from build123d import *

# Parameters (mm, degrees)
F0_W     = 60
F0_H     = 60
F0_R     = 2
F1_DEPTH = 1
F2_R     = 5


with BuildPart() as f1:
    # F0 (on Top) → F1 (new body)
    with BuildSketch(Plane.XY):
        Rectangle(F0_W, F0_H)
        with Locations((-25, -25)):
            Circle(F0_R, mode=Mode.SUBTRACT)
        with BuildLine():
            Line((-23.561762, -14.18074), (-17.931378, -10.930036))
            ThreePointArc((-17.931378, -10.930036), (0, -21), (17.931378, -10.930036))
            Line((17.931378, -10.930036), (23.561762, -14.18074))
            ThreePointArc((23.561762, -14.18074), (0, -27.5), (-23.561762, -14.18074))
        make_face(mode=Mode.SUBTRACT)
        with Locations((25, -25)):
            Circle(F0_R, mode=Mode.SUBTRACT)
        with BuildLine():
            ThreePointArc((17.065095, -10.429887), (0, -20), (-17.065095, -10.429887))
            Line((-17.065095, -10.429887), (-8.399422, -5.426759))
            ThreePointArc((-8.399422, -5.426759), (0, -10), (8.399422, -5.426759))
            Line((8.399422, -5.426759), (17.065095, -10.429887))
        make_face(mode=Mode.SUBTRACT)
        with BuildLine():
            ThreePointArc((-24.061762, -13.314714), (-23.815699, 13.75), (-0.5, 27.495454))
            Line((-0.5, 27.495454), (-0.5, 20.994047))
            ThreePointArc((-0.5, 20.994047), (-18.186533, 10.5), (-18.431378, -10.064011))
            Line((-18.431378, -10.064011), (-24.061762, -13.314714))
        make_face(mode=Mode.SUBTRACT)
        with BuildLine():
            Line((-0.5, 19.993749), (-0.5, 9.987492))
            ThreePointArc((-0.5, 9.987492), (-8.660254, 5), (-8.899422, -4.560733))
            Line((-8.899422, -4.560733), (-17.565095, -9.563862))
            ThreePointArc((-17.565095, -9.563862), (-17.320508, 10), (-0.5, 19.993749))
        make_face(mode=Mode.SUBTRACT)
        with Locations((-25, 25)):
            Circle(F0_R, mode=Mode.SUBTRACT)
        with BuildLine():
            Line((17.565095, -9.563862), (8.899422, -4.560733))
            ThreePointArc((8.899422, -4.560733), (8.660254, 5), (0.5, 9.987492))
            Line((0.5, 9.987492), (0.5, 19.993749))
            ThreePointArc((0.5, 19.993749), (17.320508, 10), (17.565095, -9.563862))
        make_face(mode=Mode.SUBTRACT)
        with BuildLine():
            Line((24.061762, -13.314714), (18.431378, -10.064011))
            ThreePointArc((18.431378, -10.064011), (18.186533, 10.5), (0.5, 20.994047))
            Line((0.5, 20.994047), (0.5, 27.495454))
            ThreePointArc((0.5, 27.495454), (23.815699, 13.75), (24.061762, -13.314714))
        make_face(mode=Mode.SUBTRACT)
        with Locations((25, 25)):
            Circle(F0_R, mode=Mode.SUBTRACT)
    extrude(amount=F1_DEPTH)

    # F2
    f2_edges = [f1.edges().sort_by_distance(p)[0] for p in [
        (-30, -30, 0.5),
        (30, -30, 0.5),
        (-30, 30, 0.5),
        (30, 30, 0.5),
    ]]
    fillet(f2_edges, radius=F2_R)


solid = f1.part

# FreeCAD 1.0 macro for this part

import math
import FreeCAD as App
import Part
import Sketcher
Q = App.Units.Quantity


def edges_at(feature, points):
    """Names of the edges that pass closest to the given points."""
    edges = feature.Shape.Edges
    near = lambda p: min(range(len(edges)), key=lambda i: edges[i].distToShape(Part.Vertex(*p))[0])
    return sorted({f"Edge{near(p) + 1}" for p in points})


def add_polygon(sketch, points):
    """Adds a closed chain of lines whose ends are joined by coincident constraints."""
    first, n = sketch.GeometryCount, len(points)
    for a, b in zip(points, points[1:] + points[:1]):
        sketch.addGeometry(Part.LineSegment(App.Vector(*a, 0), App.Vector(*b, 0)), False)
    for i in range(n):
        sketch.addConstraint(Sketcher.Constraint("Coincident", first + i, 2, first + (i + 1) % n, 1))

doc = App.newDocument("Part")
body = doc.addObject("PartDesign::Body", "Body")

# Sketch on XY plane
sketch1 = body.newObject("Sketcher::SketchObject", "Sketch")
sketch1.AttachmentSupport = (doc.getObject("XY_Plane"), [""])
sketch1.MapMode = "FlatFace"
add_polygon(sketch1, [(-30, 30), (-30, -30), (30, -30), (30, 30)])  # lines 0-3
sketch1.addGeometry(Part.Circle(App.Vector(-25, -25, 0), App.Vector(0, 0, 1), 2), False)  # 4
sketch1.addGeometry(Part.ArcOfCircle(Part.Circle(App.Vector(0, 0.000001, 0), App.Vector(0, 0, 1), 27.500001), math.radians(-148.9582), math.radians(-31.0418)), False)  # 5
sketch1.addGeometry(Part.LineSegment(App.Vector(-23.561762, -14.18074, 0), App.Vector(-17.931378, -10.930036, 0)), False)  # 6
sketch1.addGeometry(Part.ArcOfCircle(Part.Circle(App.Vector(0, 0, 0), App.Vector(0, 0, 1), 21), math.radians(-148.635686), math.radians(-31.364314)), False)  # 7
sketch1.addGeometry(Part.LineSegment(App.Vector(17.931378, -10.930036, 0), App.Vector(23.561762, -14.18074, 0)), False)  # 8
sketch1.addGeometry(Part.LineSegment(App.Vector(8.399422, -5.426759, 0), App.Vector(17.065095, -10.429887, 0)), False)  # 9
sketch1.addGeometry(Part.ArcOfCircle(Part.Circle(App.Vector(0, 0.000001, 0), App.Vector(0, 0, 1), 20.000001), math.radians(-148.567456), math.radians(-31.432544)), False)  # 10
sketch1.addGeometry(Part.LineSegment(App.Vector(-17.065095, -10.429887, 0), App.Vector(-8.399422, -5.426759, 0)), False)  # 11
sketch1.addGeometry(Part.ArcOfCircle(Part.Circle(App.Vector(0, 0, 0), App.Vector(0, 0, 1), 10), math.radians(-147.134014), math.radians(-32.865986)), False)  # 12
sketch1.addGeometry(Part.Circle(App.Vector(25, -25, 0), App.Vector(0, 0, 1), 2), False)  # 13
sketch1.addGeometry(Part.LineSegment(App.Vector(-18.431378, -10.064011, 0), App.Vector(-24.061762, -13.314714, 0)), False)  # 14
sketch1.addGeometry(Part.ArcOfCircle(Part.Circle(App.Vector(-0.000001, 0, 0), App.Vector(0, 0, 1), 27.499999), math.radians(91.041797), math.radians(208.958202)), False)  # 15
sketch1.addGeometry(Part.LineSegment(App.Vector(-0.5, 27.495454, 0), App.Vector(-0.5, 20.994047, 0)), False)  # 16
sketch1.addGeometry(Part.ArcOfCircle(Part.Circle(App.Vector(0.000001, -0.000001, 0), App.Vector(0, 0, 1), 21.000001), math.radians(91.364317), math.radians(208.635683)), False)  # 17
sketch1.addGeometry(Part.ArcOfCircle(Part.Circle(App.Vector(0, -0.000001, 0), App.Vector(0, 0, 1), 20.000001), math.radians(91.432545), math.radians(208.567454)), False)  # 18
sketch1.addGeometry(Part.LineSegment(App.Vector(-0.5, 19.993749, 0), App.Vector(-0.5, 9.987492, 0)), False)  # 19
sketch1.addGeometry(Part.ArcOfCircle(Part.Circle(App.Vector(0, 0, 0), App.Vector(0, 0, 1), 10), math.radians(92.865983), math.radians(207.134015)), False)  # 20
sketch1.addGeometry(Part.LineSegment(App.Vector(-8.899422, -4.560733, 0), App.Vector(-17.565095, -9.563862, 0)), False)  # 21
sketch1.addGeometry(Part.Circle(App.Vector(-25, 25, 0), App.Vector(0, 0, 1), 2), False)  # 22
sketch1.addGeometry(Part.ArcOfCircle(Part.Circle(App.Vector(0, -0.000001, 0), App.Vector(0, 0, 1), 20.000001), math.radians(-28.567454), math.radians(88.567455)), False)  # 23
sketch1.addGeometry(Part.LineSegment(App.Vector(17.565095, -9.563862, 0), App.Vector(8.899422, -4.560733, 0)), False)  # 24
sketch1.addGeometry(Part.ArcOfCircle(Part.Circle(App.Vector(0, 0, 0), App.Vector(0, 0, 1), 10), math.radians(-27.134015), math.radians(87.134017)), False)  # 25
sketch1.addGeometry(Part.LineSegment(App.Vector(0.5, 9.987492, 0), App.Vector(0.5, 19.993749, 0)), False)  # 26
sketch1.addGeometry(Part.ArcOfCircle(Part.Circle(App.Vector(0.000001, 0, 0), App.Vector(0, 0, 1), 27.499999), math.radians(-28.958202), math.radians(88.958203)), False)  # 27
sketch1.addGeometry(Part.LineSegment(App.Vector(24.061762, -13.314714, 0), App.Vector(18.431378, -10.064011, 0)), False)  # 28
sketch1.addGeometry(Part.ArcOfCircle(Part.Circle(App.Vector(-0.000001, -0.000001, 0), App.Vector(0, 0, 1), 21.000001), math.radians(-28.635683), math.radians(88.635683)), False)  # 29
sketch1.addGeometry(Part.LineSegment(App.Vector(0.5, 20.994047, 0), App.Vector(0.5, 27.495454, 0)), False)  # 30
sketch1.addGeometry(Part.Circle(App.Vector(25, 25, 0), App.Vector(0, 0, 1), 2), False)  # 31
sketch1.addConstraint([
    Sketcher.Constraint("Coincident", 5, 1, 6, 1),
    Sketcher.Constraint("Coincident", 6, 2, 7, 1),
    Sketcher.Constraint("Coincident", 7, 2, 8, 1),
    Sketcher.Constraint("Coincident", 8, 2, 5, 2),
    Sketcher.Constraint("Coincident", 9, 2, 10, 2),
    Sketcher.Constraint("Coincident", 10, 1, 11, 1),
    Sketcher.Constraint("Coincident", 11, 2, 12, 1),
    Sketcher.Constraint("Coincident", 12, 2, 9, 1),
    Sketcher.Constraint("Coincident", 14, 2, 15, 2),
    Sketcher.Constraint("Coincident", 15, 1, 16, 1),
    Sketcher.Constraint("Coincident", 16, 2, 17, 1),
    Sketcher.Constraint("Coincident", 17, 2, 14, 1),
    Sketcher.Constraint("Coincident", 18, 1, 19, 1),
    Sketcher.Constraint("Coincident", 19, 2, 20, 1),
    Sketcher.Constraint("Coincident", 20, 2, 21, 1),
    Sketcher.Constraint("Coincident", 21, 2, 18, 2),
    Sketcher.Constraint("Coincident", 23, 1, 24, 1),
    Sketcher.Constraint("Coincident", 24, 2, 25, 1),
    Sketcher.Constraint("Coincident", 25, 2, 26, 1),
    Sketcher.Constraint("Coincident", 26, 2, 23, 2),
    Sketcher.Constraint("Coincident", 27, 1, 28, 1),
    Sketcher.Constraint("Coincident", 28, 2, 29, 1),
    Sketcher.Constraint("Coincident", 29, 2, 30, 1),
    Sketcher.Constraint("Coincident", 30, 2, 27, 2),
    Sketcher.Constraint("Vertical", 0),
    Sketcher.Constraint("Horizontal", 1),
    Sketcher.Constraint("Vertical", 2),
    Sketcher.Constraint("Horizontal", 3),
    Sketcher.Constraint("Vertical", 16),
    Sketcher.Constraint("Vertical", 19),
    Sketcher.Constraint("Vertical", 26),
    Sketcher.Constraint("Vertical", 30),
    Sketcher.Constraint("Coincident", 5, 3, -1, 1),
    Sketcher.Constraint("Coincident", 7, 3, -1, 1),
    Sketcher.Constraint("Coincident", 10, 3, -1, 1),
    Sketcher.Constraint("Coincident", 12, 3, -1, 1),
    Sketcher.Constraint("Coincident", 15, 3, -1, 1),
    Sketcher.Constraint("Coincident", 17, 3, -1, 1),
    Sketcher.Constraint("Coincident", 18, 3, -1, 1),
    Sketcher.Constraint("Coincident", 20, 3, -1, 1),
    Sketcher.Constraint("Coincident", 23, 3, -1, 1),
    Sketcher.Constraint("Coincident", 25, 3, -1, 1),
    Sketcher.Constraint("Coincident", 27, 3, -1, 1),
    Sketcher.Constraint("Coincident", 29, 3, -1, 1),
    Sketcher.Constraint("Equal", 4, 13),
    Sketcher.Constraint("Equal", 5, 15),
    Sketcher.Constraint("Equal", 7, 17),
    Sketcher.Constraint("Equal", 10, 18),
    Sketcher.Constraint("Equal", 12, 20),
    Sketcher.Constraint("Equal", 13, 22),
    Sketcher.Constraint("Equal", 18, 23),
    Sketcher.Constraint("Equal", 20, 25),
    Sketcher.Constraint("Equal", 15, 27),
    Sketcher.Constraint("Equal", 17, 29),
    Sketcher.Constraint("Equal", 22, 31),
    Sketcher.Constraint("Symmetric", 13, 3, 22, 3, -1, 1),
    Sketcher.Constraint("Symmetric", 4, 3, 31, 3, -1, 1),
    Sketcher.Constraint("Symmetric", 0, 2, 2, 2, -1, 1),
    Sketcher.Constraint("Symmetric", 4, 3, 13, 3, -2),
    Sketcher.Constraint("Parallel", 8, 9),
    Sketcher.Constraint("Parallel", 6, 11),
    Sketcher.Constraint("Parallel", 11, 14),
    Sketcher.Constraint("Parallel", 14, 21),
    Sketcher.Constraint("Parallel", 9, 24),
    Sketcher.Constraint("Parallel", 24, 28),
    Sketcher.Constraint("Horizontal", 6, 2, 7, 2),
    Sketcher.Constraint("Horizontal", 5, 1, 8, 2),
    Sketcher.Constraint("Horizontal", 9, 2, 10, 1),
    Sketcher.Constraint("Horizontal", 21, 2, 23, 1),
    Sketcher.Constraint("Horizontal", 19, 2, 25, 2),
    Sketcher.Constraint("Horizontal", 14, 2, 27, 1),
    Sketcher.Constraint("Horizontal", 16, 2, 29, 2),
    Sketcher.Constraint("Vertical", 16, 2, 18, 1),
    Sketcher.Constraint("Equal", 3, 0),
    Sketcher.Constraint("Equal", 8, 14),
    Sketcher.Constraint("Equal", 11, 21),
    Sketcher.Constraint("Diameter", 4, Q("4 mm")),
    Sketcher.Constraint("Radius", 7, Q("21 mm")),
    Sketcher.Constraint("Radius", 10, Q("20.000001 mm")),
    Sketcher.Constraint("Radius", 12, Q("10 mm")),
    Sketcher.Constraint("Radius", 5, Q("27.500001 mm")),
    Sketcher.Constraint("DistanceX", 1, 1, 1, 2, Q("60 mm")),
    Sketcher.Constraint("Angle", 6, Q("30.000002 deg")),
    Sketcher.Constraint("DistanceX", 4, 3, -1, 1, Q("25 mm")),
    Sketcher.Constraint("DistanceY", 4, 3, -1, 1, Q("25 mm")),
    Sketcher.Constraint("DistanceX", 19, 2, 25, 2, Q("1 mm")),
    Sketcher.Constraint("DistanceX", 14, 2, 5, 1, Q("0.5 mm")),
    Sketcher.Constraint("DistanceX", 20, 2, 11, 2, Q("0.5 mm")),
])
pad1 = body.newObject("PartDesign::Pad", "Pad")
pad1.Profile = sketch1
pad1.Length = 1
doc.recompute()

fillet = body.newObject("PartDesign::Fillet", "Fillet")
fillet.Base = (pad1, edges_at(pad1, [
    (-30, -30, 0.5),
    (30, -30, 0.5),
    (-30, 30, 0.5),
    (30, 30, 0.5),
]))
fillet.Radius = 5

doc.recompute()
